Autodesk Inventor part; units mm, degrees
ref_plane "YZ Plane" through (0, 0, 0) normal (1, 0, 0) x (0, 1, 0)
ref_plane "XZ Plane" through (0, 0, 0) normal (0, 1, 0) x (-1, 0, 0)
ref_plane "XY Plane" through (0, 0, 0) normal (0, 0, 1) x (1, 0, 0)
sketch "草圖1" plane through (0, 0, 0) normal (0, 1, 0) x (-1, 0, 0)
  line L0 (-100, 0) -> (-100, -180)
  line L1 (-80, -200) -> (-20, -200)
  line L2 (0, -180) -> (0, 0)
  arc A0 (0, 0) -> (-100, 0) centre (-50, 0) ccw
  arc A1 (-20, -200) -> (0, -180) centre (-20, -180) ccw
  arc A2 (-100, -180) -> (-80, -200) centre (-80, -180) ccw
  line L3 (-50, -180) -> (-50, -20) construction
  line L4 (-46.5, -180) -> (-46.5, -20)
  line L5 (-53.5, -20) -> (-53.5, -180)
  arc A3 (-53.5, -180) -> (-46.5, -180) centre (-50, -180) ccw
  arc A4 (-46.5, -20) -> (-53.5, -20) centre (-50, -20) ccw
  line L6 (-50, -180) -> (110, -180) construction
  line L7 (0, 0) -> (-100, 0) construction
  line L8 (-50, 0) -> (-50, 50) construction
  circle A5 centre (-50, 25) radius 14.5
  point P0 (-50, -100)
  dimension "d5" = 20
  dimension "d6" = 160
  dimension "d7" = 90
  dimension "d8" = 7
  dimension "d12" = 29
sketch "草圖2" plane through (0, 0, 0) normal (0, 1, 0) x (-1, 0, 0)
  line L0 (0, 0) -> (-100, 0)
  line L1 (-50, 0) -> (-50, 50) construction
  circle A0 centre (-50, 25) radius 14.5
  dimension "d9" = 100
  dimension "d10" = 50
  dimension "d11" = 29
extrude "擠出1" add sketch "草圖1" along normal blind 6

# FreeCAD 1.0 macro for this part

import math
import FreeCAD as App
import Part
import Sketcher
from FreeCAD import Vector

doc = App.newDocument("Part")
body = doc.addObject("PartDesign::Body", "Body")

# Sketch on XZ plane
sketch1 = body.newObject("Sketcher::SketchObject", "Sketch")
sketch1.AttachmentSupport = (doc.getObject("XZ_Plane"), [""])
sketch1.MapMode = "FlatFace"
sketch1.addGeometry([
    Part.ArcOfCircle(Part.Circle(Vector(50, 0, 0), Vector(0, 0, 1), 50), math.radians(0), math.radians(180)),  # 0
    Part.LineSegment(Vector(100, 0, 0), Vector(100, -180, 0)),  # 1
    Part.ArcOfCircle(Part.Circle(Vector(80, -180, 0), Vector(0, 0, 1), 20), math.radians(-90), math.radians(0)),  # 2
    Part.LineSegment(Vector(80, -200, 0), Vector(20, -200, 0)),  # 3
    Part.ArcOfCircle(Part.Circle(Vector(20, -180, 0), Vector(0, 0, 1), 20), math.radians(180), math.radians(270)),  # 4
    Part.LineSegment(Vector(0, -180, 0), Vector(0, 0, 0)),  # 5
    Part.LineSegment(Vector(46.5, -20, 0), Vector(46.5, -180, 0)),  # 6
    Part.ArcOfCircle(Part.Circle(Vector(50, -180, 0), Vector(0, 0, 1), 3.5), math.radians(180), math.radians(360)),  # 7
    Part.LineSegment(Vector(53.5, -180, 0), Vector(53.5, -20, 0)),  # 8
    Part.ArcOfCircle(Part.Circle(Vector(50, -20, 0), Vector(0, 0, 1), 3.5), math.radians(0), math.radians(180)),  # 9
    Part.Circle(Vector(50, 25, 0), Vector(0, 0, 1), 14.5),  # 10
], False)
sketch1.addConstraint([
    Sketcher.Constraint("Tangent", 0, 1, 1, 1),
    Sketcher.Constraint("Tangent", 1, 2, 2, 2),
    Sketcher.Constraint("Tangent", 2, 1, 3, 1),
    Sketcher.Constraint("Tangent", 3, 2, 4, 2),
    Sketcher.Constraint("Tangent", 4, 1, 5, 1),
    Sketcher.Constraint("Tangent", 5, 2, 0, 2),
    Sketcher.Constraint("Tangent", 6, 2, 7, 1),
    Sketcher.Constraint("Tangent", 7, 2, 8, 1),
    Sketcher.Constraint("Tangent", 8, 2, 9, 1),
    Sketcher.Constraint("Tangent", 9, 2, 6, 1),
    Sketcher.Constraint("Vertical", 1),
    Sketcher.Constraint("Horizontal", 3),
    Sketcher.Constraint("Vertical", 5),
    Sketcher.Constraint("Vertical", 6),
    Sketcher.Constraint("Vertical", 8),
    Sketcher.Constraint("Coincident", 5, 2, -1, 1),
    Sketcher.Constraint("Equal", 2, 4),
    Sketcher.Constraint("Horizontal", 4, 3, 7, 3),
    Sketcher.Constraint("Vertical", 0, 3, 7, 3),
    Sketcher.Constraint("Vertical", 9, 3, 10, 3),
    Sketcher.Constraint("Diameter", 10, 29.0),
    Sketcher.Constraint("Radius", 2, 20.0),
    Sketcher.Constraint("Radius", 7, 3.5),
    Sketcher.Constraint("DistanceY", 6, 2, 6, 1, 160.0),
    Sketcher.Constraint("DistanceY", 9, 3, -1, 1, 20.0),
    Sketcher.Constraint("Radius", 0, 50.0),
    Sketcher.Constraint("DistanceY", -1, 1, 10, 3, 25.0),
])
pad1 = body.newObject("PartDesign::Pad", "Pad")
pad1.Profile = sketch1
pad1.Length = 6
pad1.Reversed = True

doc.recompute()
